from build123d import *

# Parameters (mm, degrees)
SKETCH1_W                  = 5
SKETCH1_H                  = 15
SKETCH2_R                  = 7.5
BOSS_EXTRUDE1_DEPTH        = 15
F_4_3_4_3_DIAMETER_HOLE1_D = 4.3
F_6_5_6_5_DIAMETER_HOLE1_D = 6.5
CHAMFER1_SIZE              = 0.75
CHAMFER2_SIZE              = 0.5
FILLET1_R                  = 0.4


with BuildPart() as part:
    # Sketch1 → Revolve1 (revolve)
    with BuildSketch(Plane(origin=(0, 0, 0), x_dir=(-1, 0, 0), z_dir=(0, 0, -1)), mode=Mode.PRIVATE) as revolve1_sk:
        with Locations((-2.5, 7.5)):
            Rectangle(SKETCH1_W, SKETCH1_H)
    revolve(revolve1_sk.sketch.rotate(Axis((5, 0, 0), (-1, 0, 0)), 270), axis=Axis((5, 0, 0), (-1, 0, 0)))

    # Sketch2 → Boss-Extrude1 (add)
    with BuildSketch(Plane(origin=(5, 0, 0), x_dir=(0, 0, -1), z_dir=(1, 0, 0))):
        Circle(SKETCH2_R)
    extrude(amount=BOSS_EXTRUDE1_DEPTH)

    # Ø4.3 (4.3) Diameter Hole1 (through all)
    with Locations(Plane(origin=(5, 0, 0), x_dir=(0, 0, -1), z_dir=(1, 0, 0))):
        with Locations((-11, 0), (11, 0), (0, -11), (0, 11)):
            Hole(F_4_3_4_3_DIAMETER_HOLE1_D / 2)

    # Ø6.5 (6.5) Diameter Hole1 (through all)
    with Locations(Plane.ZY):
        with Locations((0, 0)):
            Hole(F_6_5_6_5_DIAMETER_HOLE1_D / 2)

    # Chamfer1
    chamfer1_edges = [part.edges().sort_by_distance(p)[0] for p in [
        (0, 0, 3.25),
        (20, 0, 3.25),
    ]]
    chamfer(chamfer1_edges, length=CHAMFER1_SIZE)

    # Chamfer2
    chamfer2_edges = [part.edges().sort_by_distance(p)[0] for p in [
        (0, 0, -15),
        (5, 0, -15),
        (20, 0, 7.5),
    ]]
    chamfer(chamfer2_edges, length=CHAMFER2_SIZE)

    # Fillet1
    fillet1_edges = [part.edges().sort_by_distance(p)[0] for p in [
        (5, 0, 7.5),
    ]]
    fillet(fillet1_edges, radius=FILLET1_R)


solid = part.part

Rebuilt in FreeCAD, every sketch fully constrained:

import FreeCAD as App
import Part
import Sketcher

V = App.Vector


def edges_at(feature, points):
    """Names of the edges that pass closest to the given points."""
    edges = feature.Shape.Edges
    near = lambda p: min(range(len(edges)), key=lambda i: edges[i].distToShape(Part.Vertex(*p))[0])
    return sorted({f"Edge{near(p) + 1}" for p in points})


def add_polygon(sketch, points):
    """Adds a closed chain of lines whose ends are joined by coincident constraints."""
    first, n = sketch.GeometryCount, len(points)
    for a, b in zip(points, points[1:] + points[:1]):
        sketch.addGeometry(Part.LineSegment(App.Vector(*a, 0), App.Vector(*b, 0)), False)
    for i in range(n):
        sketch.addConstraint(Sketcher.Constraint("Coincident", first + i, 2, first + (i + 1) % n, 1))

doc = App.newDocument("Part")
body = doc.addObject("PartDesign::Body", "Body")

sketch1 = doc.addObject("Sketcher::SketchObject", "Sketch")
body.addObject(sketch1)
sketch1.AttachmentSupport = (doc.XY_Plane, [""])
sketch1.MapMode = "FlatFace"
add_polygon(sketch1, [(5, 15), (5, 0), (0, 0), (0, 15)])
sketch1.addConstraint([
    Sketcher.Constraint("Vertical", 0),
    Sketcher.Constraint("Horizontal", 1),
    Sketcher.Constraint("Vertical", 2),
    Sketcher.Constraint("Horizontal", 3),
    Sketcher.Constraint("Coincident", 1, 2, -1, 1),
    Sketcher.Constraint("DistanceX", 1, 2, 1, 1, 5.0),
    Sketcher.Constraint("DistanceY", 0, 2, 0, 1, 15.0),
])
revolution = doc.addObject("PartDesign::Revolution", "Revolution")
body.addObject(revolution)
revolution.Profile = sketch1
revolution.ReferenceAxis = (sketch1, ["H_Axis"])
revolution.Angle = 360

sketch2 = doc.addObject("Sketcher::SketchObject", "Sketch001")
body.addObject(sketch2)
sketch2.AttachmentSupport = (doc.YZ_Plane, [""])
sketch2.MapMode = "FlatFace"
sketch2.AttachmentOffset = App.Placement(V(0, 0, 5), App.Rotation())
sketch2.addGeometry(Part.Circle(V(0, 0, 0), V(0, 0, 1), 8), False)
sketch2.addConstraint([
    Sketcher.Constraint("Coincident", 0, 3, -1, 1),
    Sketcher.Constraint("Diameter", 0, 15.0),
])
pad1 = doc.addObject("PartDesign::Pad", "Pad")
body.addObject(pad1)
pad1.Profile = sketch2
pad1.Length = 15

sketch3 = doc.addObject("Sketcher::SketchObject", "Sketch002")
body.addObject(sketch3)
sketch3.AttachmentSupport = (doc.YZ_Plane, [""])
sketch3.MapMode = "FlatFace"
sketch3.AttachmentOffset = App.Placement(V(0, 0, 5), App.Rotation())
sketch3.addGeometry([
    Part.Circle(V(0, 11, 0), V(0, 0, 1), 2.1),
    Part.Circle(V(0, -11, 0), V(0, 0, 1), 2.1),
    Part.Circle(V(-11, 0, 0), V(0, 0, 1), 2.1),
    Part.Circle(V(11, 0, 0), V(0, 0, 1), 2.1),
], False)
sketch3.addConstraint([
    Sketcher.Constraint("Equal", 0, 1),
    Sketcher.Constraint("Equal", 1, 2),
    Sketcher.Constraint("Equal", 2, 3),
    Sketcher.Constraint("Symmetric", 0, 3, 1, 3, -1, 1),
    Sketcher.Constraint("Symmetric", 2, 3, 3, 3, -1, 1),
    Sketcher.Constraint("PointOnObject", 0, 3, -2),
    Sketcher.Constraint("PointOnObject", 2, 3, -1),
    Sketcher.Constraint("Diameter", 0, 4.3),
    Sketcher.Constraint("DistanceY", -1, 1, 0, 3, 11.0),
    Sketcher.Constraint("DistanceX", 2, 3, -1, 1, 11.0),
])
doc.recompute()
hole = doc.addObject("PartDesign::Hole", "Hole")
body.addObject(hole)
hole.Profile = sketch3
hole.ThreadType = "None"
hole.Diameter = 4.3
hole.DepthType = "ThroughAll"

sketch4 = doc.addObject("Sketcher::SketchObject", "Sketch003")
body.addObject(sketch4)
sketch4.AttachmentSupport = (doc.YZ_Plane, [""])
sketch4.MapMode = "FlatFace"
sketch4.addGeometry(Part.Circle(V(0, 0, 0), V(0, 0, 1), 3.2), False)
sketch4.addConstraint([
    Sketcher.Constraint("Coincident", 0, 3, -1, 1),
    Sketcher.Constraint("Diameter", 0, 6.5),
])
doc.recompute()
hole2 = doc.addObject("PartDesign::Hole", "Hole001")
body.addObject(hole2)
hole2.Profile = sketch4
hole2.ThreadType = "None"
hole2.Diameter = 6.5
hole2.DepthType = "ThroughAll"
hole2.Reversed = True
doc.recompute()

chamfer = doc.addObject("PartDesign::Chamfer", "Chamfer")
body.addObject(chamfer)
chamfer.Base = (hole2, edges_at(hole2, [(0, 0, 3.25), (20, 0, 3.25)]))
chamfer.Size = 0.75
doc.recompute()

chamfer2 = doc.addObject("PartDesign::Chamfer", "Chamfer001")
body.addObject(chamfer2)
chamfer2.Base = (chamfer, edges_at(chamfer, [(0, 0, -15), (5, 0, -15), (20, 0, 7.5)]))
chamfer2.Size = 0.5
doc.recompute()

fillet = doc.addObject("PartDesign::Fillet", "Fillet")
body.addObject(fillet)
fillet.Base = (chamfer2, edges_at(chamfer2, [(5, 0, 7.5)]))
fillet.Radius = 0.4

doc.recompute()
